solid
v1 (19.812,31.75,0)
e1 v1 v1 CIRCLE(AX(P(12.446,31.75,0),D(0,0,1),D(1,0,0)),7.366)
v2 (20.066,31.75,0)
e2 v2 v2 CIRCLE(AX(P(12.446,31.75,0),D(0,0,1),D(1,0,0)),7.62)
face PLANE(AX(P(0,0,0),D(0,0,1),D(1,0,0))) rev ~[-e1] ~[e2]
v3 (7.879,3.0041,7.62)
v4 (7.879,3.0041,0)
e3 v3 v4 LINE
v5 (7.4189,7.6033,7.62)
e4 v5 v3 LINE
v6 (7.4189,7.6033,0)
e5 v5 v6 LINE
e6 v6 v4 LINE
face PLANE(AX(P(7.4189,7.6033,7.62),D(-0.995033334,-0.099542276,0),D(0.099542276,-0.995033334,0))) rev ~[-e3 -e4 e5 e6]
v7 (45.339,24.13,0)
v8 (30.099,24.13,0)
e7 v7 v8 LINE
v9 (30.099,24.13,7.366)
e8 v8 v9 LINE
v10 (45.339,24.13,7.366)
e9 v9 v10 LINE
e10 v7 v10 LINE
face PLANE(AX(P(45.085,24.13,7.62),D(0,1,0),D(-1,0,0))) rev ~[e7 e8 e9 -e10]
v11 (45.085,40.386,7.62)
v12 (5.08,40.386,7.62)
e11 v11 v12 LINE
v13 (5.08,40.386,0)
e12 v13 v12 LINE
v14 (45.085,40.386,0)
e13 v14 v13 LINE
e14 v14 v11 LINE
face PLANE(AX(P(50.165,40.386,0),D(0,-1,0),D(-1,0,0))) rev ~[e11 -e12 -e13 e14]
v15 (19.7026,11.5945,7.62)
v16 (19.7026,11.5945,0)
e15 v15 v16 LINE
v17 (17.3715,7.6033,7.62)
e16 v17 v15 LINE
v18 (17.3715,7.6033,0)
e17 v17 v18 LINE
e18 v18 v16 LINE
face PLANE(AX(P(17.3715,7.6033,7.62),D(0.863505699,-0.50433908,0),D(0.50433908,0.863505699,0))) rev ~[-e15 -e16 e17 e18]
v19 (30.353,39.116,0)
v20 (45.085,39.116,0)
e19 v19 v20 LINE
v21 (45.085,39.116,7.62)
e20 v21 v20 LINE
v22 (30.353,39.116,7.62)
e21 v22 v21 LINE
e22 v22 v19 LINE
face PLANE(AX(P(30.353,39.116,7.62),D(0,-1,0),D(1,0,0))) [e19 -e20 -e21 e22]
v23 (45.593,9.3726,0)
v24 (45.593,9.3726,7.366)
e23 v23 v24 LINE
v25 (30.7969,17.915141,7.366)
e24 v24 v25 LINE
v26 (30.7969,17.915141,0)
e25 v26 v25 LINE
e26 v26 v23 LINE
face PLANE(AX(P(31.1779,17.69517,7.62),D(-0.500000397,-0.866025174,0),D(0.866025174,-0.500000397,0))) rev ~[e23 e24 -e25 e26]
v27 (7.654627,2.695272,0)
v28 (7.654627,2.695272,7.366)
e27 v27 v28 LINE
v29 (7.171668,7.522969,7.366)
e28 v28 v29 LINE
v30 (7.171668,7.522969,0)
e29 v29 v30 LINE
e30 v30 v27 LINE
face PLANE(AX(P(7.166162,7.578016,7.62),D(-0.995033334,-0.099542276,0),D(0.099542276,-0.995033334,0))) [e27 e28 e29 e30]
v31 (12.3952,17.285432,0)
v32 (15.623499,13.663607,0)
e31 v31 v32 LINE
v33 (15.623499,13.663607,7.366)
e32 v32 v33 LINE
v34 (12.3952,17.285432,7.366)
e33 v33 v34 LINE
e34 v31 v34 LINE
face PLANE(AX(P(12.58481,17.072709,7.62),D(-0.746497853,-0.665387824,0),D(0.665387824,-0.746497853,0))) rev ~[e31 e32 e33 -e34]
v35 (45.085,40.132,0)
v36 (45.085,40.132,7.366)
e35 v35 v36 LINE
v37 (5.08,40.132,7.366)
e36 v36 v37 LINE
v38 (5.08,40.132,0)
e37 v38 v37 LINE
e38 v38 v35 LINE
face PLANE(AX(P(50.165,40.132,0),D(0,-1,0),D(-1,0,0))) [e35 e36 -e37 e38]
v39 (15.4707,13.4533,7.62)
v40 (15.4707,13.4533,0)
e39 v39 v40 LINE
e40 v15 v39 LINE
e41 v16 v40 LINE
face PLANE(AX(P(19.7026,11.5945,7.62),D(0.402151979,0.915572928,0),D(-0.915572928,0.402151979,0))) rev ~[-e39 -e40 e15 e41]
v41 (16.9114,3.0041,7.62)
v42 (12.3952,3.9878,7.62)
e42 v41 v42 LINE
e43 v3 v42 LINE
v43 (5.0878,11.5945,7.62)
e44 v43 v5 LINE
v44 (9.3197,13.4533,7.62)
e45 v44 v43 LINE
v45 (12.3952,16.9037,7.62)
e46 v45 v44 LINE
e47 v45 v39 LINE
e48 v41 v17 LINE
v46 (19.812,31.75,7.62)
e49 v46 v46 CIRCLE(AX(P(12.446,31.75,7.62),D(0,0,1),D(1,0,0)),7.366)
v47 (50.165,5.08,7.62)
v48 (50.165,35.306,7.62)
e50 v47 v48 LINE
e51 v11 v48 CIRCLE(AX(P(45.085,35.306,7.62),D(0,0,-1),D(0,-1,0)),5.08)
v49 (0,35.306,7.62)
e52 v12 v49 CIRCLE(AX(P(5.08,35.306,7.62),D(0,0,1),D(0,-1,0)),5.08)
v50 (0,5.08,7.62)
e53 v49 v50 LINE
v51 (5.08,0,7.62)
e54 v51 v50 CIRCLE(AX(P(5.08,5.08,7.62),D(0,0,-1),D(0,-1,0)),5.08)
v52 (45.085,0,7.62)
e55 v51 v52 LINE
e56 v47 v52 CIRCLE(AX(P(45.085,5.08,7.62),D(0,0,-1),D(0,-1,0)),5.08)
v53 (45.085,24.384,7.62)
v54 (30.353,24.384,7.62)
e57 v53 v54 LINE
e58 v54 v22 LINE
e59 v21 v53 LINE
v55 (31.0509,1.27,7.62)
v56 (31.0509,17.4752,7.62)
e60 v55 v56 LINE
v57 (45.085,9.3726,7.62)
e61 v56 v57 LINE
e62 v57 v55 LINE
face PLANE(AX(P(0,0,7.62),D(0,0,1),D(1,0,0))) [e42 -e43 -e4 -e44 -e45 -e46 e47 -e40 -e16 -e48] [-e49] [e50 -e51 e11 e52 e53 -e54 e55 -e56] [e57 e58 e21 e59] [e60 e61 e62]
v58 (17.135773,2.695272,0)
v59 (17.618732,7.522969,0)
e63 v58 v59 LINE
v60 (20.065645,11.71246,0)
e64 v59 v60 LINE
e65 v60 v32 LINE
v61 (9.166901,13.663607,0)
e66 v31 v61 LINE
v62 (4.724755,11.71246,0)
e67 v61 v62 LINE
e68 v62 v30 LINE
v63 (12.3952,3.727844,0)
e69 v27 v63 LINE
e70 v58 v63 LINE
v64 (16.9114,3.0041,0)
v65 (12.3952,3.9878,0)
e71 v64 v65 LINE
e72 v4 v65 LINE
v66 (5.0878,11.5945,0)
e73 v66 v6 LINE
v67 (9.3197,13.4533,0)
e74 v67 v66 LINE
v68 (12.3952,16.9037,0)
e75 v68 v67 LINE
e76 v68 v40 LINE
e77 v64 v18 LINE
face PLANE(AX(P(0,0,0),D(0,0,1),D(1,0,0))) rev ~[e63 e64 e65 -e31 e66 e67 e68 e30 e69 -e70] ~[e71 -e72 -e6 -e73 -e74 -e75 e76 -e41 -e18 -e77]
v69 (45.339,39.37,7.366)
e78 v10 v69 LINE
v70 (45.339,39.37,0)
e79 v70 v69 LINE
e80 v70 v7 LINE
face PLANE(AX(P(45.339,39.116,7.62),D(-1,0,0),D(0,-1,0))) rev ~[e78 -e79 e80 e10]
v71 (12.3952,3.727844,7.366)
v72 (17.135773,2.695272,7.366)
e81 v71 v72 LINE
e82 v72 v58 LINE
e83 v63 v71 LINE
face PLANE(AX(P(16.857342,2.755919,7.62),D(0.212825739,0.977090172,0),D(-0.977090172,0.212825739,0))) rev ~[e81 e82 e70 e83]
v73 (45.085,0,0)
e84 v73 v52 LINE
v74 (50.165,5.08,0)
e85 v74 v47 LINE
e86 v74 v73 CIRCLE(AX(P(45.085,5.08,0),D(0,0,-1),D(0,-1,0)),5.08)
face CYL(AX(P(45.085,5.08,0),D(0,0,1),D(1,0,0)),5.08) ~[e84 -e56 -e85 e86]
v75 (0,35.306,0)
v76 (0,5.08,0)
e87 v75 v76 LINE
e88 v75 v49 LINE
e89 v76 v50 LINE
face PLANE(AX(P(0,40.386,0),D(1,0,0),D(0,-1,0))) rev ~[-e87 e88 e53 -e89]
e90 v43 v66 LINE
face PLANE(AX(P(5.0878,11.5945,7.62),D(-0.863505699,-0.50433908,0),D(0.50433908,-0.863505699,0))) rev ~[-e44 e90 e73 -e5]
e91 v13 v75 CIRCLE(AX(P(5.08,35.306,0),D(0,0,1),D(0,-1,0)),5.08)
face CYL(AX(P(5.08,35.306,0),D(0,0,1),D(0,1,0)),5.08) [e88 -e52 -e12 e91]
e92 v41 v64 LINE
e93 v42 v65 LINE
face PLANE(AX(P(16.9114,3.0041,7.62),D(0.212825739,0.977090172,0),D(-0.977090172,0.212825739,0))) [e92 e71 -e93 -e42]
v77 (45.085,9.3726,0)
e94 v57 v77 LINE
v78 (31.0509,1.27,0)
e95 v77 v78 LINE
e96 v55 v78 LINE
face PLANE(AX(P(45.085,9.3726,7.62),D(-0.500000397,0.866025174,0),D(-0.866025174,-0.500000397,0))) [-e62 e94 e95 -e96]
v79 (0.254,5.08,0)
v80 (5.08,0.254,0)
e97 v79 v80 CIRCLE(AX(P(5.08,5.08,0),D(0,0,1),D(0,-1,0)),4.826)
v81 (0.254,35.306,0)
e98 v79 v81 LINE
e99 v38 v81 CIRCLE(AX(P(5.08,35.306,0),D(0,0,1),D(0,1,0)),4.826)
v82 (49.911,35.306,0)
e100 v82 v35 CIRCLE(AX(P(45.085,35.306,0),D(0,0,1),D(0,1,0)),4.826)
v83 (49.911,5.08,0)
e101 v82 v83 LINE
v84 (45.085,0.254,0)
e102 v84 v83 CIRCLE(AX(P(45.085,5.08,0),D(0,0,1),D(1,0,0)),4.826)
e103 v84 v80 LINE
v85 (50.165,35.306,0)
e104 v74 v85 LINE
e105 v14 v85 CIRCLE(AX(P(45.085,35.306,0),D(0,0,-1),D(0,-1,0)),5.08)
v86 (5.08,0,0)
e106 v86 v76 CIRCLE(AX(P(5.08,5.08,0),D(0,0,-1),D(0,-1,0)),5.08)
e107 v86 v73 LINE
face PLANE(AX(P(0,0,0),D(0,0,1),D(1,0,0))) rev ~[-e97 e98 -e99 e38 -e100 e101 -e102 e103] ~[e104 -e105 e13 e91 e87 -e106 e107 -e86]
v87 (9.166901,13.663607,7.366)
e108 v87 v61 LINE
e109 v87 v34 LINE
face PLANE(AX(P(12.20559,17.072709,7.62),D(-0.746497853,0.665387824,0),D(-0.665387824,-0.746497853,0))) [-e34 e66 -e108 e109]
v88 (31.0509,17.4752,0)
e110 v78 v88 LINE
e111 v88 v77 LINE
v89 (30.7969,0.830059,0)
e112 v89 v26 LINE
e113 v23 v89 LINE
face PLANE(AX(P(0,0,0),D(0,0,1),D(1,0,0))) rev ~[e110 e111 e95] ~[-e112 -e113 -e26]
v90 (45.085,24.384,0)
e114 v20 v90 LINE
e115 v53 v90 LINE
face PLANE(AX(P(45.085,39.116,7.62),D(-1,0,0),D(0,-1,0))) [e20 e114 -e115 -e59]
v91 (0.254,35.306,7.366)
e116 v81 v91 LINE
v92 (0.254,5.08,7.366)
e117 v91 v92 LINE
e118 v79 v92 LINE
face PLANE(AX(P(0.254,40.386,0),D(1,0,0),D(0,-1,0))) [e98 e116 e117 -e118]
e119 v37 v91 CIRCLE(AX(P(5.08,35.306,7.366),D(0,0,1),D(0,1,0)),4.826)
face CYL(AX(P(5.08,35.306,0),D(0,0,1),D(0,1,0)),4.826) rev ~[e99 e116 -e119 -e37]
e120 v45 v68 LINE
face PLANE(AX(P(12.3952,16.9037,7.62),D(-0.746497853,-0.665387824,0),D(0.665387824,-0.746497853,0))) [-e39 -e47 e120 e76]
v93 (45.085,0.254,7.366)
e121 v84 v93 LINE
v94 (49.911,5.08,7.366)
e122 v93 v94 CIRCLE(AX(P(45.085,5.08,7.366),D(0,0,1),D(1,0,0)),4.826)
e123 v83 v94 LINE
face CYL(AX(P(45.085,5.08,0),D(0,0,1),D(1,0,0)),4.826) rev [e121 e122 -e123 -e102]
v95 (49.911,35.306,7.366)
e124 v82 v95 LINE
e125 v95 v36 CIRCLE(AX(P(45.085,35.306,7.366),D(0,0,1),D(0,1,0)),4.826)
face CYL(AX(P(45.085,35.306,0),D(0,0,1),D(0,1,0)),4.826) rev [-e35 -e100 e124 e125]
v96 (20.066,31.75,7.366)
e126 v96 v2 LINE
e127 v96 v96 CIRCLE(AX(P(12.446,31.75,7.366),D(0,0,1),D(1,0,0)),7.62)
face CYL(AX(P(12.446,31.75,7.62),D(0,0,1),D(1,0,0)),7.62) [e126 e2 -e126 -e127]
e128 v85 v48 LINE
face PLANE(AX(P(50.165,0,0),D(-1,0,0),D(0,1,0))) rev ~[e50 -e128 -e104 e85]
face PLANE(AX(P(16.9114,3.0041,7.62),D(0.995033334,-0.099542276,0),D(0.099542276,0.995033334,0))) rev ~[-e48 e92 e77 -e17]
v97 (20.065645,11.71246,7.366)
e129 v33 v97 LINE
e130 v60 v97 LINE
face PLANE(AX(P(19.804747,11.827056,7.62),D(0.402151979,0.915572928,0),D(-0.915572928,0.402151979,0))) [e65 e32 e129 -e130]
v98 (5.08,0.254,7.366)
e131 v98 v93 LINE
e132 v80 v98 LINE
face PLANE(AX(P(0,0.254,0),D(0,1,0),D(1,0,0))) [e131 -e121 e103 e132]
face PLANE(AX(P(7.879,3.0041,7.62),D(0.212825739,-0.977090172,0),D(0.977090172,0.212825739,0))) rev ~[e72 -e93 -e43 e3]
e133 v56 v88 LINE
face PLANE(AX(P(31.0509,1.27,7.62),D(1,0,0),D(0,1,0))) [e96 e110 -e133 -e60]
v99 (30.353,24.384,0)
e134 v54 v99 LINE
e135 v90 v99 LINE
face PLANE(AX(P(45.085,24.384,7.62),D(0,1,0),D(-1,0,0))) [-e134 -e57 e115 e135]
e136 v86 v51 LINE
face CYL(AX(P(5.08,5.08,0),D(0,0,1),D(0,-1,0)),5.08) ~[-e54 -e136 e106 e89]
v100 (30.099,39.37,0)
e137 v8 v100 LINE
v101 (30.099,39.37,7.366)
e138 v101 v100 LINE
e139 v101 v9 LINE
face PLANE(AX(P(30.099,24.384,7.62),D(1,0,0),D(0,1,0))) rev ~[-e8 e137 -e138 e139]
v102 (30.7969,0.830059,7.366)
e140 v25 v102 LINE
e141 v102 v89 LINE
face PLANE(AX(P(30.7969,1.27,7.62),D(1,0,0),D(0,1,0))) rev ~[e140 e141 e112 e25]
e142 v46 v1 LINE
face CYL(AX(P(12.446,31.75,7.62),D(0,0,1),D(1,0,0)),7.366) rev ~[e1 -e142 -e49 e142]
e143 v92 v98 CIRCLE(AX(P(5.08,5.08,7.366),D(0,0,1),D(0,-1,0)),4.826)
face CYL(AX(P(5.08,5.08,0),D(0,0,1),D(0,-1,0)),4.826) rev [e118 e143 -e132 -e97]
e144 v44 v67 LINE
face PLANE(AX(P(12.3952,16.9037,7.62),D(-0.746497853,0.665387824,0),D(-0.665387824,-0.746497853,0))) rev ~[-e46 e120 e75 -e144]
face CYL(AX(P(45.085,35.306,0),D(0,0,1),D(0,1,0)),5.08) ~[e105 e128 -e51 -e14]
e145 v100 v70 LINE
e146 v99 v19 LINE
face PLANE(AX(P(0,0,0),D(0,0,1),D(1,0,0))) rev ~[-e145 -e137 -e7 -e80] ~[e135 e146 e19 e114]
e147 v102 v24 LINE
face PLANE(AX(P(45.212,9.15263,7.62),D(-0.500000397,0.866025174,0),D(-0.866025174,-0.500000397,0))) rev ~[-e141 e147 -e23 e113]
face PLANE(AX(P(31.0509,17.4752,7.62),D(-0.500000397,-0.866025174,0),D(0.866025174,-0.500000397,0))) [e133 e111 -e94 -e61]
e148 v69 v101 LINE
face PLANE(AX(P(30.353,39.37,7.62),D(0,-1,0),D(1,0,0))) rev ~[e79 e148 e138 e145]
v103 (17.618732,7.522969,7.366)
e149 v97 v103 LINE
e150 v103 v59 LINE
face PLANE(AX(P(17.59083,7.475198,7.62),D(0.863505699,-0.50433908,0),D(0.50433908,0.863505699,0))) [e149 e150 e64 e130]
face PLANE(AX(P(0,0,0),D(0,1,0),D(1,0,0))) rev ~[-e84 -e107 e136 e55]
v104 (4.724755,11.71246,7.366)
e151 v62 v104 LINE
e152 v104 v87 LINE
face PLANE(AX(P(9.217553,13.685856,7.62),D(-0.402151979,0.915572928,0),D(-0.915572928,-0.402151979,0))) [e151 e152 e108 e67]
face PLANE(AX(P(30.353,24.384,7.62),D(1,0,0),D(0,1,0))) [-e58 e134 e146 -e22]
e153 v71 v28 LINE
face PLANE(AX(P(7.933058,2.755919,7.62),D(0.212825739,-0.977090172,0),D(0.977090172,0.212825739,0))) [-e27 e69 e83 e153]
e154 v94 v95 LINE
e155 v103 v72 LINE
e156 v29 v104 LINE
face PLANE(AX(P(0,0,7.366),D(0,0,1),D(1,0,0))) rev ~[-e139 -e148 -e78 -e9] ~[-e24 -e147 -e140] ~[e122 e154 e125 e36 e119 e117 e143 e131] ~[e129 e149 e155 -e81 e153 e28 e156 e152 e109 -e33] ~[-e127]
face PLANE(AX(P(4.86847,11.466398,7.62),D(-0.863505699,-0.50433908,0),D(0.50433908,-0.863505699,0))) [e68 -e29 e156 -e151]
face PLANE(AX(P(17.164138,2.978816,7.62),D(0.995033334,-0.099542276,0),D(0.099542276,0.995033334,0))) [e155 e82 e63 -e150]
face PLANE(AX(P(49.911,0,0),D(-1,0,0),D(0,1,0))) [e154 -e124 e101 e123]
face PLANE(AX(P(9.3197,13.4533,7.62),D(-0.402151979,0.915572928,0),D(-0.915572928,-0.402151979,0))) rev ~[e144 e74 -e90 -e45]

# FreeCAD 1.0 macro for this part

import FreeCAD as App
import Part
import Sketcher
from FreeCAD import Vector
Q = App.Units.Quantity


def edges_at(feature, points):
    """Names of the edges that pass closest to the given points."""
    edges = feature.Shape.Edges
    near = lambda p: min(range(len(edges)), key=lambda i: edges[i].distToShape(Part.Vertex(*p))[0])
    return sorted({f"Edge{near(p) + 1}" for p in points})


def faces_at(feature, points):
    """Names of the faces that lie closest to the given points."""
    faces = feature.Shape.Faces
    near = lambda p: min(range(len(faces)), key=lambda i: faces[i].distToShape(Part.Vertex(*p))[0])
    return sorted({f"Face{near(p) + 1}" for p in points})


def add_polygon(sketch, points):
    """Adds a closed chain of lines whose ends are joined by coincident constraints."""
    first, n = sketch.GeometryCount, len(points)
    for a, b in zip(points, points[1:] + points[:1]):
        sketch.addGeometry(Part.LineSegment(App.Vector(*a, 0), App.Vector(*b, 0)), False)
    for i in range(n):
        sketch.addConstraint(Sketcher.Constraint("Coincident", first + i, 2, first + (i + 1) % n, 1))

doc = App.newDocument("Part")
body = doc.addObject("PartDesign::Body", "Body")

sketch1 = body.newObject("Sketcher::SketchObject", "Sketch")
sketch1.AttachmentSupport = (doc.getObject("XY_Plane"), [""])
sketch1.MapMode = "FlatFace"
add_polygon(sketch1, [(0, 40), (0, 0), (50, 0), (50, 40)])
sketch1.addConstraint([
    Sketcher.Constraint("Vertical", 0),
    Sketcher.Constraint("Horizontal", 1),
    Sketcher.Constraint("Vertical", 2),
    Sketcher.Constraint("Horizontal", 3),
    Sketcher.Constraint("Coincident", 0, 2, -1, 1),
    Sketcher.Constraint("DistanceY", 0, 2, 0, 1, Q("1.59 in")),
    Sketcher.Constraint("DistanceX", 1, 1, 1, 2, Q("1.975 in")),
])
pad1 = body.newObject("PartDesign::Pad", "Pad")
pad1.Profile = sketch1
pad1.Length = Q("0.3 in")

sketch2 = body.newObject("Sketcher::SketchObject", "Sketch001")
sketch2.AttachmentSupport = (doc.getObject("XY_Plane"), [""])
sketch2.MapMode = "FlatFace"
sketch2.AttachmentOffset = App.Placement(Vector(0, 0, 0.3 * 25.4), App.Rotation())
sketch2.addGeometry(Part.Circle(Vector(12.446, 31.75, 0), Vector(0, 0, 1), 7.366), False)
add_polygon(sketch2, [(45.085, 39.116), (30.353, 39.116), (30.353, 24.384), (45.085, 24.384)])
add_polygon(sketch2, [(31.0509, 17.4752), (31.0509, 1.27), (45.085, 9.3726)])
add_polygon(sketch2, [(15.4707, 13.4533), (12.3952, 16.9037), (9.3197, 13.4533), (5.0878, 11.5945), (7.4189, 7.6033), (7.879, 3.0041), (12.3952, 3.9878), (16.9114, 3.0041), (17.3715, 7.6033), (19.7026, 11.5945)])
sketch2.addConstraint([
    Sketcher.Constraint("Horizontal", 1),
    Sketcher.Constraint("Vertical", 2),
    Sketcher.Constraint("Horizontal", 3),
    Sketcher.Constraint("Vertical", 4),
    Sketcher.Constraint("Vertical", 5),
    Sketcher.Constraint("Diameter", 0, Q("0.58 in")),
    Sketcher.Constraint("DistanceX", 1, 2, 1, 1, Q("0.58 in")),
    Sketcher.Constraint("DistanceY", 2, 2, 2, 1, Q("0.58 in")),
    Sketcher.Constraint("DistanceY", 5, 2, 5, 1, Q("0.638 in")),
    Sketcher.Constraint("DistanceX", -1, 1, 0, 3, Q("0.49 in")),
    Sketcher.Constraint("DistanceY", -1, 1, 5, 2, Q("0.05 in")),
    Sketcher.Constraint("DistanceX", 2, 2, 6, 2, Q("0.58 in")),
    Sketcher.Constraint("Distance", 6, Q("0.638 in")),
    Sketcher.Constraint("Distance", 7, Q("0.638 in")),
    Sketcher.Constraint("DistanceX", -1, 1, 8, 2, Q("0.488 in")),
    Sketcher.Constraint("DistanceX", -1, 1, 13, 2, Q("0.488 in")),
    Sketcher.Constraint("DistanceY", 5, 2, 0, 3, Q("1.2 in")),
    Sketcher.Constraint("DistanceY", -1, 1, 1, 2, Q("1.54 in")),
    Sketcher.Constraint("DistanceX", -1, 1, 1, 2, Q("1.195 in")),
    Sketcher.Constraint("DistanceY", -1, 1, 13, 2, Q("0.157 in")),
    Sketcher.Constraint("DistanceX", 9, 2, 15, 2, Q("0.317 in")),
    Sketcher.Constraint("DistanceX", 11, 2, 17, 2, Q("0.317 in")),
    Sketcher.Constraint("DistanceY", -1, 1, 8, 2, Q("0.6655 in")),
    Sketcher.Constraint("DistanceX", -1, 1, 10, 2, Q("0.2003 in")),
    Sketcher.Constraint("DistanceX", -1, 1, 12, 2, Q("0.3102 in")),
    Sketcher.Constraint("DistanceX", -1, 1, 14, 2, Q("0.6658 in")),
    Sketcher.Constraint("DistanceX", -1, 1, 16, 2, Q("0.7757 in")),
    Sketcher.Constraint("DistanceX", 10, 2, 9, 2, Q("0.1666 in")),
    Sketcher.Constraint("DistanceX", 11, 2, 5, 2, Q("0.9304 in")),
    Sketcher.Constraint("DistanceY", 12, 2, 10, 2, Q("0.3382 in")),
    Sketcher.Constraint("DistanceY", 14, 2, 16, 2, Q("0.3382 in")),
    Sketcher.Constraint("Distance", 8, 4.622),
    Sketcher.Constraint("Distance", 9, 4.622),
    Sketcher.Constraint("Distance", 10, 4.6221),
    Sketcher.Constraint("Distance", 11, 4.622),
    Sketcher.Constraint("Distance", 14, 4.622),
    Sketcher.Constraint("Distance", 15, 4.6222),
])
pocket1 = body.newObject("PartDesign::Pocket", "Pocket")
pocket1.Profile = sketch2
pocket1.Length = Q("1 in")
doc.recompute()

fillet = body.newObject("PartDesign::Fillet", "Fillet")
fillet.Base = (pocket1, edges_at(pocket1, [(50.165, 40.386, 3.81)]))
fillet.Radius = Q("0.2 in")
doc.recompute()

fillet2 = body.newObject("PartDesign::Fillet", "Fillet001")
fillet2.Base = (fillet, edges_at(fillet, [(0, 40.386, 3.81)]))
fillet2.Radius = Q("0.2 in")
doc.recompute()

fillet3 = body.newObject("PartDesign::Fillet", "Fillet002")
fillet3.Base = (fillet2, edges_at(fillet2, [(50.165, 0, 3.81)]))
fillet3.Radius = Q("0.2 in")
doc.recompute()

fillet4 = body.newObject("PartDesign::Fillet", "Fillet003")
fillet4.Base = (fillet3, edges_at(fillet3, [(0, 0, 3.81)]))
fillet4.Radius = Q("0.2 in")
doc.recompute()

thickness = body.newObject("PartDesign::Thickness", "Thickness")
thickness.Base = (fillet4, faces_at(fillet4, [(40.407, 17.077, 0)]))
thickness.Value = Q("0.01 in")
thickness.Reversed = True
thickness.Join = "Intersection"

doc.recompute()
